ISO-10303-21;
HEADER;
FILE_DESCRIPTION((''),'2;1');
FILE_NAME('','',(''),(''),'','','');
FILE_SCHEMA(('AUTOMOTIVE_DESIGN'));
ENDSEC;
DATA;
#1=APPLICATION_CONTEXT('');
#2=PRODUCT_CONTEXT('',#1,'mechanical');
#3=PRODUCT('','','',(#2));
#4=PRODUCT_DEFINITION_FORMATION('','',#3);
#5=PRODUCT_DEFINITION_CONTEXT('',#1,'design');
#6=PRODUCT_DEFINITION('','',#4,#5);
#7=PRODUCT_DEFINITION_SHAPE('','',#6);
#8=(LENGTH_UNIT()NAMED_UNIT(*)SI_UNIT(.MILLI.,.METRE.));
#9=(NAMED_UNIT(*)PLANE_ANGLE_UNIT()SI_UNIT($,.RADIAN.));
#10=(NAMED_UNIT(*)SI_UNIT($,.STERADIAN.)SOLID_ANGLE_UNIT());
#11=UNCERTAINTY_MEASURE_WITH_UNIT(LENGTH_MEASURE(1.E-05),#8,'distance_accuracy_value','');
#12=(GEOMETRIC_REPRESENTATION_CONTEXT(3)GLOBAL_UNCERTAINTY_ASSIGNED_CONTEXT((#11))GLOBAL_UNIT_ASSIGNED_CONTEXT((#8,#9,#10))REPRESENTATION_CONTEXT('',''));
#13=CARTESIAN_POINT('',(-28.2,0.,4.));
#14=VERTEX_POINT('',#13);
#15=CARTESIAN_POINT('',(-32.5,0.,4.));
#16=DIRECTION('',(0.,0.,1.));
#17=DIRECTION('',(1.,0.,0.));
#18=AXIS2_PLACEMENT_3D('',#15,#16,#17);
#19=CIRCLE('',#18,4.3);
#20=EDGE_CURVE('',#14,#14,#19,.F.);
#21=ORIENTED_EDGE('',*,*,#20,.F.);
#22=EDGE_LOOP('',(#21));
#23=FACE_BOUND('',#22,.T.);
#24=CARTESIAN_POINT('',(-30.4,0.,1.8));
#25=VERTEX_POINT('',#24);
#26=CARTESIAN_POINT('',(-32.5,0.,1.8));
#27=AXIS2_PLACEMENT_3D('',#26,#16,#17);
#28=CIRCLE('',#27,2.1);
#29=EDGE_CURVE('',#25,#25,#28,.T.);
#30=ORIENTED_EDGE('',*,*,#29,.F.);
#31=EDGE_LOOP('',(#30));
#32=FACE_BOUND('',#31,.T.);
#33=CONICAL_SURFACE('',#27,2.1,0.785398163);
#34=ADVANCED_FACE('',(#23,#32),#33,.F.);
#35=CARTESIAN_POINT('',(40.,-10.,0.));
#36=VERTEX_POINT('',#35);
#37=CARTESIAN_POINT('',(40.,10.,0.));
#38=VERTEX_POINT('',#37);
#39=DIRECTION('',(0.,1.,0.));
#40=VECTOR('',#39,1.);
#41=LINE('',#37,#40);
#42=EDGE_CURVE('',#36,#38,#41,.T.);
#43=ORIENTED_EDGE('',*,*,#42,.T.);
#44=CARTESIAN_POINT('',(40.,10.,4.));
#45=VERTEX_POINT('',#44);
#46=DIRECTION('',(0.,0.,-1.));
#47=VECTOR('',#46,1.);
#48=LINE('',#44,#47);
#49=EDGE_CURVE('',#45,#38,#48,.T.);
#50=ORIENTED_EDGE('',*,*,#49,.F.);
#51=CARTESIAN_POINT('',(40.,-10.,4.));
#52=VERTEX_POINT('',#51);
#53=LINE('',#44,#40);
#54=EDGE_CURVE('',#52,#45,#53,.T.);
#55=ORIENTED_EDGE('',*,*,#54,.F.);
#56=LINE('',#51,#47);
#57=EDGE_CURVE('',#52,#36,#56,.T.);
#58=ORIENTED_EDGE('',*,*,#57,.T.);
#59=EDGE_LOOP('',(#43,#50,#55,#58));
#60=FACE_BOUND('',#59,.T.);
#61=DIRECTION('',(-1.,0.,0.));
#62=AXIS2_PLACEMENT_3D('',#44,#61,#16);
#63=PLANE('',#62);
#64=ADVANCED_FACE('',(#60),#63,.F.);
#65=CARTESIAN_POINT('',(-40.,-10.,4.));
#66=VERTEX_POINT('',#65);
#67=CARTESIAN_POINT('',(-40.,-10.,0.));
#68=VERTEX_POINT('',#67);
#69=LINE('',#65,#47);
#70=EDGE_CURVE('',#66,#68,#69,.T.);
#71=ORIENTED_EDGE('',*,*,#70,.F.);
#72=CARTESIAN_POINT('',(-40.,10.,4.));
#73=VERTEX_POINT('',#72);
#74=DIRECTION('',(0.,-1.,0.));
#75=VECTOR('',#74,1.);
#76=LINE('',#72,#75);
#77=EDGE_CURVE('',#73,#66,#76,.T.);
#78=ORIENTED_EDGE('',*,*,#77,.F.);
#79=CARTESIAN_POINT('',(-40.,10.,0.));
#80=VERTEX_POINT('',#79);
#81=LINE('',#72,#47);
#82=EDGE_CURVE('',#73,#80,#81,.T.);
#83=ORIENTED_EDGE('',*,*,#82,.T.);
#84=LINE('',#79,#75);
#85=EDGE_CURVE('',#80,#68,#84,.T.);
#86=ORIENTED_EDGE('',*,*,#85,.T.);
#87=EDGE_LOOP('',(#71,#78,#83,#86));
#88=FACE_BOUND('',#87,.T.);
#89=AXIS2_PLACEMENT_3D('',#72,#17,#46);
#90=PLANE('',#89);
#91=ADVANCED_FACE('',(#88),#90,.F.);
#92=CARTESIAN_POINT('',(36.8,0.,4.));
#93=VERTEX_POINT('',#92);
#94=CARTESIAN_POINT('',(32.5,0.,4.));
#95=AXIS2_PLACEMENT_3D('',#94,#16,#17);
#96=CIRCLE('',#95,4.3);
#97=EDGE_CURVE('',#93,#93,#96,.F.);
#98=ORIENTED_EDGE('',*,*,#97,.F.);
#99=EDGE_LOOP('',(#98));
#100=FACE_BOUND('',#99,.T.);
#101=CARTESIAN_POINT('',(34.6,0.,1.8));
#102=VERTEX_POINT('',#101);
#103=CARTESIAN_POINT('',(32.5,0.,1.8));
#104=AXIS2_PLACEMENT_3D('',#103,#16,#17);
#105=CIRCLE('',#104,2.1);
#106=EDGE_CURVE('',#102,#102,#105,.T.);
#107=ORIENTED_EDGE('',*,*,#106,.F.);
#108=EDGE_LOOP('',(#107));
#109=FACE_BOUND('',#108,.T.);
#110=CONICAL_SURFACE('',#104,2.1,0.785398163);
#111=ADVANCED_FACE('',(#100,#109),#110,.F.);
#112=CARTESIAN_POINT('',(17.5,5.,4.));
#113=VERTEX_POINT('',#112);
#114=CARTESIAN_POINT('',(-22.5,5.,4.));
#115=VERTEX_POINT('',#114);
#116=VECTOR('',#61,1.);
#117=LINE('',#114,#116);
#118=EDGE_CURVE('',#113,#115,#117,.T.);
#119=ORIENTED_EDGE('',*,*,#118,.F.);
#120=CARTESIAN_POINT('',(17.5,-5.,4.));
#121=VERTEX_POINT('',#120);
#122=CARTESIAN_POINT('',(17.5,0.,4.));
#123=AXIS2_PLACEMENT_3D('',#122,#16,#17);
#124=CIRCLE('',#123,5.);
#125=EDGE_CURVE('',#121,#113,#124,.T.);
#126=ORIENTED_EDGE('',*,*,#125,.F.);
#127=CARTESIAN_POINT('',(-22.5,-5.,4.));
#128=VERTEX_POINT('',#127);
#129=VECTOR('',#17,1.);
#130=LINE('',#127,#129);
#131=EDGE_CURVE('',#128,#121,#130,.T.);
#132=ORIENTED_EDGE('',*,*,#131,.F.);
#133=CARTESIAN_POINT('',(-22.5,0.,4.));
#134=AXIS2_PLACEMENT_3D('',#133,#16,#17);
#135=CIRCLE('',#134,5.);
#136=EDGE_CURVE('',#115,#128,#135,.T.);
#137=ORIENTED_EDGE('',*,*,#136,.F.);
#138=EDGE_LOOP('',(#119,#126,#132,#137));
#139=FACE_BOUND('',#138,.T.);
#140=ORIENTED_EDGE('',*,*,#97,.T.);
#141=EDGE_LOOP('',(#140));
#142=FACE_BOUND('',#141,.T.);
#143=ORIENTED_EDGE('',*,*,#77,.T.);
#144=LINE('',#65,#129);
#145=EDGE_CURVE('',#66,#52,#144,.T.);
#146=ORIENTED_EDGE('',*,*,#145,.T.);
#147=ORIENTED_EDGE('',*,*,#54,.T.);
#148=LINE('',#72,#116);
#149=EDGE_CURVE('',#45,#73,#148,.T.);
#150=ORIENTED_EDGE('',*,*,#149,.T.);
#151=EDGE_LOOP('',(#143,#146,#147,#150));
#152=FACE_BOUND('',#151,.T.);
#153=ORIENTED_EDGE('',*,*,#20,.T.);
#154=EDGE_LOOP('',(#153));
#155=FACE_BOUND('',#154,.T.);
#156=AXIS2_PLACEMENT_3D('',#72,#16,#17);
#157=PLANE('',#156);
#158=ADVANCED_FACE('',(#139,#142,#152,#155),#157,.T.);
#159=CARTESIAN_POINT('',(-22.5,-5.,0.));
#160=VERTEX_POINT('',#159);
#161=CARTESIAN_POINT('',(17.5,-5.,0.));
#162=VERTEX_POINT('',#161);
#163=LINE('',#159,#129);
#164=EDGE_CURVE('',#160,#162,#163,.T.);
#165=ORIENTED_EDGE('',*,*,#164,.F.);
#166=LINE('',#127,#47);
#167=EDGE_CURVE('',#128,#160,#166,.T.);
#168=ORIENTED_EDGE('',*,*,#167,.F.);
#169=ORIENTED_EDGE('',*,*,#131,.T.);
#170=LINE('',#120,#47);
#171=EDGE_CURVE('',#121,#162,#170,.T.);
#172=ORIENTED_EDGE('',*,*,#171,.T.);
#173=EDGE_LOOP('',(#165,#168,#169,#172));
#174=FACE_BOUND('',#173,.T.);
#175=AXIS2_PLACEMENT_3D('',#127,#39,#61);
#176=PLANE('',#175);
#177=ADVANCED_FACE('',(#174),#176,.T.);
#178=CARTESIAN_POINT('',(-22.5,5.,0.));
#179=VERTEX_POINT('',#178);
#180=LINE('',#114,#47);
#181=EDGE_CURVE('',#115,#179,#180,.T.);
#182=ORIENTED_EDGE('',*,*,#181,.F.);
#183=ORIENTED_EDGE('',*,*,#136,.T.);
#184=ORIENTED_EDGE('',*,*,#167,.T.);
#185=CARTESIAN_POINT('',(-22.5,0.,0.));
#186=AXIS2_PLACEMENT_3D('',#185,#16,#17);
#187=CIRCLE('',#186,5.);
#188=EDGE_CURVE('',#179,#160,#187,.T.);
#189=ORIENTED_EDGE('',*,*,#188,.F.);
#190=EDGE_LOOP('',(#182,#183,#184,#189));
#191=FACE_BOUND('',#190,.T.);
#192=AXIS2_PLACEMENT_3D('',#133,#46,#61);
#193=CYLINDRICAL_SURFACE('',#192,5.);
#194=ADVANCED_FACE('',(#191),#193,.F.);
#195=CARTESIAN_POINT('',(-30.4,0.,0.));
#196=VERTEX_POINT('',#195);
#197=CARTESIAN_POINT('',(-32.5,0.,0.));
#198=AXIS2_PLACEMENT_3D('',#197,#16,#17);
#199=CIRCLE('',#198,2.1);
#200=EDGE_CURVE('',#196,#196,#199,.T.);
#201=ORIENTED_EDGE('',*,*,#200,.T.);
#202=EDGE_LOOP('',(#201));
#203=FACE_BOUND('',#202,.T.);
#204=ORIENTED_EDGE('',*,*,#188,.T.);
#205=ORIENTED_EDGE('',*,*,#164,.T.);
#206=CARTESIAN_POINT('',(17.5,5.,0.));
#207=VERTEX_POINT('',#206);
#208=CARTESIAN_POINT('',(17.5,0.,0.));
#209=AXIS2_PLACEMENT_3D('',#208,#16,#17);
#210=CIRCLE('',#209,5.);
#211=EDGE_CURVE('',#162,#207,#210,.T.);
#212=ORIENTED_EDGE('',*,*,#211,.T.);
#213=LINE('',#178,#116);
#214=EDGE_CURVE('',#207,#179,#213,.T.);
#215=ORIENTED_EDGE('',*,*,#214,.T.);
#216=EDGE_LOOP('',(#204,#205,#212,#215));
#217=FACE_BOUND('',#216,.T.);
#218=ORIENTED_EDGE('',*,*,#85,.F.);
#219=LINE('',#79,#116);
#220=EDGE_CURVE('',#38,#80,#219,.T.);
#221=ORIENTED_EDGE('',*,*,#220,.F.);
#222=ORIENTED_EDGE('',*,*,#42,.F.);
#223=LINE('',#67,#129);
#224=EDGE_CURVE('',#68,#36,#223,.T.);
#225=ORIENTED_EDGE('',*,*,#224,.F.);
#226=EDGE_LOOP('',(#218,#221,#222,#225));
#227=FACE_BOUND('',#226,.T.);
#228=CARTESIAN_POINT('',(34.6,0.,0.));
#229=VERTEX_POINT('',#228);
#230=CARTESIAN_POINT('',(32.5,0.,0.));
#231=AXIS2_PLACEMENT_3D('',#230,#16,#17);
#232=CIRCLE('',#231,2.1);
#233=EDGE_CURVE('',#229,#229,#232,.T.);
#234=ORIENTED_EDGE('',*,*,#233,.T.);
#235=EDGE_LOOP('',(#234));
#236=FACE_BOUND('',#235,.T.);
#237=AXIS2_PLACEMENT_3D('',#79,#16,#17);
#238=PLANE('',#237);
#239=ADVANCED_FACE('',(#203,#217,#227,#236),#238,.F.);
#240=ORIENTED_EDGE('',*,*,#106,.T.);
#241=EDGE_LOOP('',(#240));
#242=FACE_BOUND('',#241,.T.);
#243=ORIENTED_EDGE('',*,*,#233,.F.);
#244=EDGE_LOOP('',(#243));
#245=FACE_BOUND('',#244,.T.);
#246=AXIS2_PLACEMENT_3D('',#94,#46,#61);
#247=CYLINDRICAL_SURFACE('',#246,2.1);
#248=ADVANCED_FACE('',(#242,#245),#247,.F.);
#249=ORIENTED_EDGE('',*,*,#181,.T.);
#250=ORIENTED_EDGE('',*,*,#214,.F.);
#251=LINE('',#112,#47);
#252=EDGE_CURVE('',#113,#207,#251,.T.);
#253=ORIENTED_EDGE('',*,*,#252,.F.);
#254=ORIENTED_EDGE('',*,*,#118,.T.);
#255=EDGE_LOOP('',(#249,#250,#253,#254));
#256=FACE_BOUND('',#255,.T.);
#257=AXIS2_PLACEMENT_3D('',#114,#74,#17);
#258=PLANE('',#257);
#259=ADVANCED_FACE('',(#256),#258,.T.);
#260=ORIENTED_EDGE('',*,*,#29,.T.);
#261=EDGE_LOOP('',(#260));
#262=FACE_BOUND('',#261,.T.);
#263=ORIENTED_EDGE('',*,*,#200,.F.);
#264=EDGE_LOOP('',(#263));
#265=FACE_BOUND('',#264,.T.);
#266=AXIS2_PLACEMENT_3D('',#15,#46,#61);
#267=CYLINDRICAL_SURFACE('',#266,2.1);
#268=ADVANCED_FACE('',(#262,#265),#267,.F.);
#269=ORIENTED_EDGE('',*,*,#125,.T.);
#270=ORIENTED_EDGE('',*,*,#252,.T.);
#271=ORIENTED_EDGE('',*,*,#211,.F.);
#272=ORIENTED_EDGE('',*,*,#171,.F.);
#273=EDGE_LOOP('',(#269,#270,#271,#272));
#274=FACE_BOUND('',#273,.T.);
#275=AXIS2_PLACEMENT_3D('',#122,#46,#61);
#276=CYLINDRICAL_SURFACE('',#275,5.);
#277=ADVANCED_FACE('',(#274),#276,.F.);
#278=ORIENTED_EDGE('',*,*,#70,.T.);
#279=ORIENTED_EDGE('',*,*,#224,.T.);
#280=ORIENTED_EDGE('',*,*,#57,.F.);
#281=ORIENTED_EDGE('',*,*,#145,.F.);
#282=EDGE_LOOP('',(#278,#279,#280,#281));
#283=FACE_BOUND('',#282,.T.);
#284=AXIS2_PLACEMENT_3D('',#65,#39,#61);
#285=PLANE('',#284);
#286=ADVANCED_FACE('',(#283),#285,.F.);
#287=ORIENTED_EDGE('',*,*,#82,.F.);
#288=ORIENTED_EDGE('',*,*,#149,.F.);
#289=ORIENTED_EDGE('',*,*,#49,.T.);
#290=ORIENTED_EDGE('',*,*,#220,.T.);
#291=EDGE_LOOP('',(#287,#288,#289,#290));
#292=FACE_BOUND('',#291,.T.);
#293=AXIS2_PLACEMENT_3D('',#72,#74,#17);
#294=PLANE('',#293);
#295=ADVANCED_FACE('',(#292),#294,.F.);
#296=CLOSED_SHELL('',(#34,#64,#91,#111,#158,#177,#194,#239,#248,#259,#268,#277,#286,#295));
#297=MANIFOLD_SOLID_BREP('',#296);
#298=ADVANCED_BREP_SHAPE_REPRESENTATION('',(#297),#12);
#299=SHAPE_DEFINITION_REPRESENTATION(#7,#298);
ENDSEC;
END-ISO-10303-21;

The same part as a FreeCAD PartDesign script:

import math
import FreeCAD as App
import Part
import Sketcher

V = App.Vector


def edges_at(feature, points):
    """Names of the edges that pass closest to the given points."""
    edges = feature.Shape.Edges
    near = lambda p: min(range(len(edges)), key=lambda i: edges[i].distToShape(Part.Vertex(*p))[0])
    return sorted({f"Edge{near(p) + 1}" for p in points})

doc = App.newDocument("Part")
body = doc.addObject("PartDesign::Body", "Body")

# Sketch on XY plane
sketch1 = doc.addObject("Sketcher::SketchObject", "Sketch")
body.addObject(sketch1)
sketch1.AttachmentSupport = (doc.XY_Plane, [""])
sketch1.MapMode = "FlatFace"
sketch1.addGeometry(Part.LineSegment(V(-40, 10, 0), V(-40, -10, 0)), False)
sketch1.addGeometry(Part.LineSegment(V(-40, -10, 0), V(40, -10, 0)), False)
sketch1.addGeometry(Part.LineSegment(V(40, -10, 0), V(40, 10, 0)), False)
sketch1.addGeometry(Part.LineSegment(V(40, 10, 0), V(-40, 10, 0)), False)
sketch1.addGeometry(Part.Circle(V(-32.5, 0, 0), V(0, 0, 1), 2.1), False)
sketch1.addGeometry(Part.ArcOfCircle(Part.Circle(V(-22.5, 0, 0), V(0, 0, 1), 5), math.radians(90), math.radians(270)), False)
sketch1.addGeometry(Part.LineSegment(V(-22.5, 5, 0), V(17.5, 5, 0)), False)
sketch1.addGeometry(Part.ArcOfCircle(Part.Circle(V(17.5, 0, 0), V(0, 0, 1), 5), math.radians(-90), math.radians(90)), False)
sketch1.addGeometry(Part.LineSegment(V(17.5, -5, 0), V(-22.5, -5, 0)), False)
sketch1.addGeometry(Part.Circle(V(32.5, 0, 0), V(0, 0, 1), 2.1), False)
sketch1.addConstraint(Sketcher.Constraint("Coincident", 0, 2, 1, 1))
sketch1.addConstraint(Sketcher.Constraint("Coincident", 1, 2, 2, 1))
sketch1.addConstraint(Sketcher.Constraint("Coincident", 2, 2, 3, 1))
sketch1.addConstraint(Sketcher.Constraint("Coincident", 3, 2, 0, 1))
sketch1.addConstraint(Sketcher.Constraint("Tangent", 5, 1, 6, 1))
sketch1.addConstraint(Sketcher.Constraint("Tangent", 6, 2, 7, 2))
sketch1.addConstraint(Sketcher.Constraint("Tangent", 7, 1, 8, 1))
sketch1.addConstraint(Sketcher.Constraint("Tangent", 8, 2, 5, 2))
sketch1.addConstraint(Sketcher.Constraint("Vertical", 0))
sketch1.addConstraint(Sketcher.Constraint("Horizontal", 1))
sketch1.addConstraint(Sketcher.Constraint("Vertical", 2))
sketch1.addConstraint(Sketcher.Constraint("Horizontal", 3))
sketch1.addConstraint(Sketcher.Constraint("Horizontal", 6))
sketch1.addConstraint(Sketcher.Constraint("Horizontal", 8))
sketch1.addConstraint(Sketcher.Constraint("Equal", 4, 9))
sketch1.addConstraint(Sketcher.Constraint("Symmetric", 4, 3, 9, 3, -1, 1))
sketch1.addConstraint(Sketcher.Constraint("Symmetric", 0, 2, 2, 2, -1, 1))
sketch1.addConstraint(Sketcher.Constraint("PointOnObject", 4, 3, -1))
sketch1.addConstraint(Sketcher.Constraint("PointOnObject", 5, 3, -1))
sketch1.addConstraint(Sketcher.Constraint("Radius", 5, 5.0))
sketch1.addConstraint(Sketcher.Constraint("Diameter", 4, 4.2))
sketch1.addConstraint(Sketcher.Constraint("DistanceX", 1, 1, 1, 2, 80.0))
sketch1.addConstraint(Sketcher.Constraint("DistanceX", 6, 1, 6, 2, 40.0))
sketch1.addConstraint(Sketcher.Constraint("DistanceY", 0, 2, 0, 1, 20.0))
sketch1.addConstraint(Sketcher.Constraint("DistanceX", 4, 3, 5, 3, 10.0))
sketch1.addConstraint(Sketcher.Constraint("DistanceX", 7, 3, 9, 3, 15.0))
pad1 = doc.addObject("PartDesign::Pad", "Pad")
body.addObject(pad1)
pad1.Profile = sketch1
pad1.Length = 4
doc.recompute()

chamfer = doc.addObject("PartDesign::Chamfer", "Chamfer")
body.addObject(chamfer)
chamfer.Base = (pad1, edges_at(pad1, [(-34.6, 0, 4), (30.4, 0, 4)]))
chamfer.Size = 2.2

doc.recompute()
